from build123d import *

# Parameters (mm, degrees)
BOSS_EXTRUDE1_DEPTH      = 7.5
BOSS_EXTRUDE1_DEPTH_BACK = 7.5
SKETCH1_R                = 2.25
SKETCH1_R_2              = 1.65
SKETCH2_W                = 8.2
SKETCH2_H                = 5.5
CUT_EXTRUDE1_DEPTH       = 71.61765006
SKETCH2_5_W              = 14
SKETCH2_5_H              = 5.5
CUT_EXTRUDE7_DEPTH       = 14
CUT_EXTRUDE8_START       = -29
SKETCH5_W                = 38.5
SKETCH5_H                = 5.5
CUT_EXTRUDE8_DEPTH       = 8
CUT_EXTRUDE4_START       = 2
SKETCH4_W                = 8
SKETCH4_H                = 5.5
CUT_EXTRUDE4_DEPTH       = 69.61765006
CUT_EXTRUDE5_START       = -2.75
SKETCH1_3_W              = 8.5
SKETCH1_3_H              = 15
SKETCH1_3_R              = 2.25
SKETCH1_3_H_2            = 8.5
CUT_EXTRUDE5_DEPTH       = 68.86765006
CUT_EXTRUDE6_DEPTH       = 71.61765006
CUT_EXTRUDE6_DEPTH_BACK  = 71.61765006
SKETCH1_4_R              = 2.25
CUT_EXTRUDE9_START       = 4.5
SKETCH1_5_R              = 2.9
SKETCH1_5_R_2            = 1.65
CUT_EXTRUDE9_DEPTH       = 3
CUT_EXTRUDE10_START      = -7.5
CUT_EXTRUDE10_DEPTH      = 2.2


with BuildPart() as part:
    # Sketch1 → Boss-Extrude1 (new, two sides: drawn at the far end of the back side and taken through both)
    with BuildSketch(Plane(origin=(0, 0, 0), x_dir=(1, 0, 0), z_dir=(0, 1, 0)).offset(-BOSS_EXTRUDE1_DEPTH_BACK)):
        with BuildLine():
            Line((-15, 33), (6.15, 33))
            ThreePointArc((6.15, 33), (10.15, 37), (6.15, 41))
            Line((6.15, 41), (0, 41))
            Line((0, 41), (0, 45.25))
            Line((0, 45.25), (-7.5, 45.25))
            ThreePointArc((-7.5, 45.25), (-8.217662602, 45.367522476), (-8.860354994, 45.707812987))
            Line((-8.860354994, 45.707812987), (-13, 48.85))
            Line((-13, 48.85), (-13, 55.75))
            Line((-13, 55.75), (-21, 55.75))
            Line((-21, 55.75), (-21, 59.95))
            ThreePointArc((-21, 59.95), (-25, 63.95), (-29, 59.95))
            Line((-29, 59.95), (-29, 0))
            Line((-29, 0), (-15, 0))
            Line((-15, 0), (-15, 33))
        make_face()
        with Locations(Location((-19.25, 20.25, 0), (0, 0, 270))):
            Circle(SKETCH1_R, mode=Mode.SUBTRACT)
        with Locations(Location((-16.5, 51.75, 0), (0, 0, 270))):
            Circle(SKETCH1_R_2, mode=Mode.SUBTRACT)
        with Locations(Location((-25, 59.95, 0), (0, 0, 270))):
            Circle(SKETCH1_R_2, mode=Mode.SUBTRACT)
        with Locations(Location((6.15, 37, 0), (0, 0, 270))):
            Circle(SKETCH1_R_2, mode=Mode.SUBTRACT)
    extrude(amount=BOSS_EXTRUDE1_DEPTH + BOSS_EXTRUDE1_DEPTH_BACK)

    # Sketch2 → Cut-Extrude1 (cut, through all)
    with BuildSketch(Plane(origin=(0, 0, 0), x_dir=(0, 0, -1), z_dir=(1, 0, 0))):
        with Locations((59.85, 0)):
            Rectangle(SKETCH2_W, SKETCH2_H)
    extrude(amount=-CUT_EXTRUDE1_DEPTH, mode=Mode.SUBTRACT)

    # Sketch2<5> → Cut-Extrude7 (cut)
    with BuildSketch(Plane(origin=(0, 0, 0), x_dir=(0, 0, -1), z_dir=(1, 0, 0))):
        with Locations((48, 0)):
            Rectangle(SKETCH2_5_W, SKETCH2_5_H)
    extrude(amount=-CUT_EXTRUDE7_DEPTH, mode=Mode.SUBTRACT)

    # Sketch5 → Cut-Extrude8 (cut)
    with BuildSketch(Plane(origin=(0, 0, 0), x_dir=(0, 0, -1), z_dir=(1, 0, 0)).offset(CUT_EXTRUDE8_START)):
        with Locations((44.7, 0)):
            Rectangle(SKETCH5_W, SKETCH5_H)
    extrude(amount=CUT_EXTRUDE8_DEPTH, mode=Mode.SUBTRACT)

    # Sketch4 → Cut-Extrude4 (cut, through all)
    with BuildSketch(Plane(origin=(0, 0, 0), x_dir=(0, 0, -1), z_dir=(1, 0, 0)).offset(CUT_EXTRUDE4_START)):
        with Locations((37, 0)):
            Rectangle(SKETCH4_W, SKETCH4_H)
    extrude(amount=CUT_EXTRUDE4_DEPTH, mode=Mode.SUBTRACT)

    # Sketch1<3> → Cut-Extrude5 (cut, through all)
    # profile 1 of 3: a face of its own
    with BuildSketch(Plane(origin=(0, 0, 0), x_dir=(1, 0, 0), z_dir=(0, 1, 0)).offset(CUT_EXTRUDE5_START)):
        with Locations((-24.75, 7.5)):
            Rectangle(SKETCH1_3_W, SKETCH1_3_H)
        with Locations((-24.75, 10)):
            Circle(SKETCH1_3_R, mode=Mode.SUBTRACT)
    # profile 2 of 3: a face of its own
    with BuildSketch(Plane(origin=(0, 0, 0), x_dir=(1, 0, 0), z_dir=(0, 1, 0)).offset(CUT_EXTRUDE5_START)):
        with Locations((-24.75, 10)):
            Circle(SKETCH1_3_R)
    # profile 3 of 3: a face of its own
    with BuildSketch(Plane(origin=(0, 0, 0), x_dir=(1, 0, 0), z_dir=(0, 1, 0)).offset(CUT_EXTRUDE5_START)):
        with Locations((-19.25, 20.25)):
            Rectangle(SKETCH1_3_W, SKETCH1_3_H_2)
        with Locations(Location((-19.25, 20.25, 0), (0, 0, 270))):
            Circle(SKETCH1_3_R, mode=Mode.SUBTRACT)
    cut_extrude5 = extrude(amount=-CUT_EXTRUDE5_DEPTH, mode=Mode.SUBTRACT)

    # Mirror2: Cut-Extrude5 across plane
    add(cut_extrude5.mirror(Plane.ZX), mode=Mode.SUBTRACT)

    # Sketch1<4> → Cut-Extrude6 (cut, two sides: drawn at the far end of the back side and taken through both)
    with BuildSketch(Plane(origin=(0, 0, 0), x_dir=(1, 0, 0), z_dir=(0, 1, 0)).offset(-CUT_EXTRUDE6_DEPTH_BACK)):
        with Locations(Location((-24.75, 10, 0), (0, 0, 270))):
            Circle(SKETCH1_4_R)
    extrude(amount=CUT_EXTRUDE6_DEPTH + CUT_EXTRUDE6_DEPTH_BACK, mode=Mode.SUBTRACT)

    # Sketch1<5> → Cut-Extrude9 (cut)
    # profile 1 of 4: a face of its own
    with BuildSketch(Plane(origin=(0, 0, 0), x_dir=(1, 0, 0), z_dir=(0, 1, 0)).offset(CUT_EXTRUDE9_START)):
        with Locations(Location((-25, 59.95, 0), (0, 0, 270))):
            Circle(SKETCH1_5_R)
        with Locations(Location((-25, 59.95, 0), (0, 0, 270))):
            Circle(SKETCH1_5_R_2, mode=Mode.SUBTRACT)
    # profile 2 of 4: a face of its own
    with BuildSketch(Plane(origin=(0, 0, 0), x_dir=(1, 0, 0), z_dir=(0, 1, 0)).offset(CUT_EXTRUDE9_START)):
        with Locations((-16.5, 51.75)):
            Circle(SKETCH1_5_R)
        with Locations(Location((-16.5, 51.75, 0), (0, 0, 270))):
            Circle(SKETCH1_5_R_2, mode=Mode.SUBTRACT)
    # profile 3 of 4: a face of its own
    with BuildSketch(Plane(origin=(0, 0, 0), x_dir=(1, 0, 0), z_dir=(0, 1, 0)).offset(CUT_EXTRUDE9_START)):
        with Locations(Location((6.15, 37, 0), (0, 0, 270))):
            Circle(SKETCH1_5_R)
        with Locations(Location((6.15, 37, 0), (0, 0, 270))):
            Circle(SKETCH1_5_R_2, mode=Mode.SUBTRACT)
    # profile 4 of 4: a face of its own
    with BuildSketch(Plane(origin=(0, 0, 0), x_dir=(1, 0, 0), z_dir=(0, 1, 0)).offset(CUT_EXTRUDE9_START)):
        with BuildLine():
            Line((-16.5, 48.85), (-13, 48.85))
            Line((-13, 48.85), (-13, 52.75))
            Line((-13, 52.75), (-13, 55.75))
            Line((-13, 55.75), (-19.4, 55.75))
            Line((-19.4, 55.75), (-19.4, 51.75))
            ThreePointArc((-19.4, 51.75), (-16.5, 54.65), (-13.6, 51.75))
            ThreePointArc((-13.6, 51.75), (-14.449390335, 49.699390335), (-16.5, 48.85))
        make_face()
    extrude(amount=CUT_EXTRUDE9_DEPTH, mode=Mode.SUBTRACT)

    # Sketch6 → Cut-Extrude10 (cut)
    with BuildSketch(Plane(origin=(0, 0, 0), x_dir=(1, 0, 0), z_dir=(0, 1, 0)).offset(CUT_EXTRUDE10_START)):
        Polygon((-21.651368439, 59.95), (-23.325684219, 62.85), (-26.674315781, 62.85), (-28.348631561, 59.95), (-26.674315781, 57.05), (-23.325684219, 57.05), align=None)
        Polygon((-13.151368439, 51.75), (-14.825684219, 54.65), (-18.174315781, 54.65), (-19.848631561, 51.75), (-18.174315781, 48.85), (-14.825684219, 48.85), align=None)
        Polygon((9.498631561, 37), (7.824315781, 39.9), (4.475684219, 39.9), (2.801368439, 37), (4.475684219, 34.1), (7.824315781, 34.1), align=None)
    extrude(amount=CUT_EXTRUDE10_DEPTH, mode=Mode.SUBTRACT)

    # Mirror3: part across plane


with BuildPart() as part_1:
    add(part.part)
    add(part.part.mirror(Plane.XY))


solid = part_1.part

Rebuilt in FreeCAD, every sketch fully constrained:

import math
import FreeCAD as App
import Part
import Sketcher
from FreeCAD import Vector
Q = App.Units.Quantity

doc = App.newDocument("Part")
body = doc.addObject("PartDesign::Body", "Body")

sketch1 = body.newObject("Sketcher::SketchObject", "Sketch")
sketch1.AttachmentSupport = (doc.getObject("XZ_Plane"), [""])
sketch1.MapMode = "FlatFace"
sketch1.addGeometry([
    Part.LineSegment(Vector(-15, -33, 0), Vector(6.2, -33, 0)),
    Part.ArcOfCircle(Part.Circle(Vector(6.2, -37, 0), Vector(0, 0, 1), 4), math.radians(-90), math.radians(90)),
    Part.LineSegment(Vector(6.2, -41, 0), Vector(0, -41, 0)),
    Part.LineSegment(Vector(0, -41, 0), Vector(0, -45.2, 0)),
    Part.LineSegment(Vector(0, -45.2, 0), Vector(-7.5, -45.2, 0)),
    Part.ArcOfCircle(Part.Circle(Vector(-7.5, -47.5, 0), Vector(0, 0, 1), 2.2), math.radians(90), math.radians(127)),
    Part.LineSegment(Vector(-8.9, -45.7, 0), Vector(-13, -48.9, 0)),
    Part.LineSegment(Vector(-13, -48.9, 0), Vector(-13, -55.8, 0)),
    Part.LineSegment(Vector(-13, -55.8, 0), Vector(-21, -55.8, 0)),
    Part.LineSegment(Vector(-21, -55.8, 0), Vector(-21, -60, 0)),
    Part.ArcOfCircle(Part.Circle(Vector(-25, -60, 0), Vector(0, 0, 1), 4), math.radians(180), math.radians(360)),
    Part.LineSegment(Vector(-29, -60, 0), Vector(-29, 0, 0)),
    Part.LineSegment(Vector(-29, 0, 0), Vector(-15, 0, 0)),
    Part.LineSegment(Vector(-15, 0, 0), Vector(-15, -33, 0)),
    Part.Circle(Vector(-19.2, -20.2, 0), Vector(0, 0, 1), 2.2),
    Part.Circle(Vector(6.2, -37, 0), Vector(0, 0, 1), 1.6),
    Part.Circle(Vector(-25, -60, 0), Vector(0, 0, 1), 1.6),
    Part.Circle(Vector(-16.5, -51.8, 0), Vector(0, 0, 1), 1.6),
], False)
sketch1.addConstraint([
    Sketcher.Constraint("Tangent", 0, 2, 1, 2),
    Sketcher.Constraint("Tangent", 1, 1, 2, 1),
    Sketcher.Constraint("Coincident", 2, 2, 3, 1),
    Sketcher.Constraint("Coincident", 3, 2, 4, 1),
    Sketcher.Constraint("Tangent", 4, 2, 5, 1),
    Sketcher.Constraint("Tangent", 5, 2, 6, 1),
    Sketcher.Constraint("Coincident", 6, 2, 7, 1),
    Sketcher.Constraint("Coincident", 7, 2, 8, 1),
    Sketcher.Constraint("Coincident", 8, 2, 9, 1),
    Sketcher.Constraint("Tangent", 9, 2, 10, 2),
    Sketcher.Constraint("Tangent", 10, 1, 11, 1),
    Sketcher.Constraint("Coincident", 11, 2, 12, 1),
    Sketcher.Constraint("Coincident", 12, 2, 13, 1),
    Sketcher.Constraint("Coincident", 13, 2, 0, 1),
    Sketcher.Constraint("Horizontal", 0),
    Sketcher.Constraint("Horizontal", 2),
    Sketcher.Constraint("Vertical", 3),
    Sketcher.Constraint("Horizontal", 4),
    Sketcher.Constraint("Vertical", 7),
    Sketcher.Constraint("Horizontal", 8),
    Sketcher.Constraint("Vertical", 9),
    Sketcher.Constraint("Vertical", 11),
    Sketcher.Constraint("Horizontal", 12),
    Sketcher.Constraint("Vertical", 13),
    Sketcher.Constraint("Coincident", 15, 3, 1, 3),
    Sketcher.Constraint("Coincident", 16, 3, 10, 3),
    Sketcher.Constraint("Equal", 1, 10),
    Sketcher.Constraint("Equal", 5, 14),
    Sketcher.Constraint("Equal", 15, 16),
    Sketcher.Constraint("Equal", 16, 17),
    Sketcher.Constraint("PointOnObject", 2, 2, -2),
    Sketcher.Constraint("PointOnObject", 11, 2, -1),
    Sketcher.Constraint("Radius", 1, Q("4 mm")),
    Sketcher.Constraint("Diameter", 14, Q("4.5 mm")),
    Sketcher.Constraint("Diameter", 15, Q("3.3 mm")),
    Sketcher.Constraint("DistanceX", 8, 2, 8, 1, Q("8 mm")),
    Sketcher.Constraint("DistanceX", 12, 1, 12, 2, Q("14 mm")),
    Sketcher.Constraint("DistanceY", 13, 2, 13, 1, Q("33 mm")),
    Sketcher.Constraint("DistanceX", 4, 2, 4, 1, Q("7.5 mm")),
    Sketcher.Constraint("DistanceY", 7, 2, 7, 1, Q("6.9 mm")),
    Sketcher.Constraint("DistanceY", 9, 2, 9, 1, Q("4.2 mm")),
    Sketcher.Constraint("DistanceX", 10, 3, -1, 1, Q("25 mm")),
    Sketcher.Constraint("DistanceX", 17, 3, 5, 3, Q("9 mm")),
    Sketcher.Constraint("DistanceY", 7, 2, 17, 3, Q("4 mm")),
    Sketcher.Constraint("DistanceX", 0, 1, 0, 2, Q("21.15 mm")),
    Sketcher.Constraint("DistanceY", 3, 2, 3, 1, Q("4.25 mm")),
    Sketcher.Constraint("DistanceY", 11, 1, 11, 2, Q("59.95 mm")),
    Sketcher.Constraint("DistanceX", 14, 3, 1, 3, Q("25.4 mm")),
    Sketcher.Constraint("DistanceY", 10, 3, 14, 3, Q("39.7 mm")),
])
pad1 = body.newObject("PartDesign::Pad", "Pad")
pad1.Profile = sketch1
pad1.Type = "TwoLengths"
pad1.Length = 7.5
pad1.Length2 = 7.5
pad1.Reversed = True

sketch2 = body.newObject("Sketcher::SketchObject", "Sketch001")
sketch2.AttachmentSupport = (doc.getObject("YZ_Plane"), [""])
sketch2.MapMode = "FlatFace"
sketch2.addGeometry([
    Part.LineSegment(Vector(3, -56, 0), Vector(-3, -56, 0)),
    Part.LineSegment(Vector(-3, -56, 0), Vector(-3, -64, 0)),
    Part.LineSegment(Vector(-3, -64, 0), Vector(3, -64, 0)),
    Part.LineSegment(Vector(3, -64, 0), Vector(3, -56, 0)),
], False)
sketch2.addConstraint([
    Sketcher.Constraint("Coincident", 0, 2, 1, 1),
    Sketcher.Constraint("Coincident", 1, 2, 2, 1),
    Sketcher.Constraint("Coincident", 2, 2, 3, 1),
    Sketcher.Constraint("Coincident", 3, 2, 0, 1),
    Sketcher.Constraint("Horizontal", 0),
    Sketcher.Constraint("Vertical", 1),
    Sketcher.Constraint("Horizontal", 2),
    Sketcher.Constraint("Vertical", 3),
    Sketcher.Constraint("DistanceX", 0, 2, 0, 1, Q("5.5 mm")),
    Sketcher.Constraint("DistanceY", 1, 2, 1, 1, Q("8.2 mm")),
    Sketcher.Constraint("DistanceX", 0, 2, -1, 1, Q("2.75 mm")),
    Sketcher.Constraint("DistanceY", 0, 2, -1, 1, Q("55.75 mm")),
])
pocket1 = body.newObject("PartDesign::Pocket", "Pocket")
pocket1.Profile = sketch2
pocket1.Type = "ThroughAll"

sketch3 = body.newObject("Sketcher::SketchObject", "Sketch002")
sketch3.AttachmentSupport = (doc.getObject("YZ_Plane"), [""])
sketch3.MapMode = "FlatFace"
sketch3.addGeometry([
    Part.LineSegment(Vector(3, -41, 0), Vector(-3, -41, 0)),
    Part.LineSegment(Vector(-3, -41, 0), Vector(-3, -55, 0)),
    Part.LineSegment(Vector(-3, -55, 0), Vector(3, -55, 0)),
    Part.LineSegment(Vector(3, -55, 0), Vector(3, -41, 0)),
], False)
sketch3.addConstraint([
    Sketcher.Constraint("Coincident", 0, 2, 1, 1),
    Sketcher.Constraint("Coincident", 1, 2, 2, 1),
    Sketcher.Constraint("Coincident", 2, 2, 3, 1),
    Sketcher.Constraint("Coincident", 3, 2, 0, 1),
    Sketcher.Constraint("Horizontal", 0),
    Sketcher.Constraint("Vertical", 1),
    Sketcher.Constraint("Horizontal", 2),
    Sketcher.Constraint("Vertical", 3),
    Sketcher.Constraint("DistanceY", 1, 2, 1, 1, Q("14 mm")),
    Sketcher.Constraint("DistanceX", 0, 2, 0, 1, Q("5.5 mm")),
    Sketcher.Constraint("DistanceY", 0, 2, -1, 1, Q("41 mm")),
    Sketcher.Constraint("DistanceX", 0, 2, -1, 1, Q("2.75 mm")),
])
pocket2 = body.newObject("PartDesign::Pocket", "Pocket001")
pocket2.Profile = sketch3
pocket2.Length = 14

sketch4 = body.newObject("Sketcher::SketchObject", "Sketch003")
sketch4.AttachmentSupport = (doc.getObject("YZ_Plane"), [""])
sketch4.MapMode = "FlatFace"
sketch4.AttachmentOffset = App.Placement(Vector(0, 0, -29), App.Rotation())
sketch4.addGeometry([
    Part.LineSegment(Vector(3, -25, 0), Vector(-3, -25, 0)),
    Part.LineSegment(Vector(-3, -25, 0), Vector(-3, -64, 0)),
    Part.LineSegment(Vector(-3, -64, 0), Vector(3, -64, 0)),
    Part.LineSegment(Vector(3, -64, 0), Vector(3, -25, 0)),
], False)
sketch4.addConstraint([
    Sketcher.Constraint("Coincident", 0, 2, 1, 1),
    Sketcher.Constraint("Coincident", 1, 2, 2, 1),
    Sketcher.Constraint("Coincident", 2, 2, 3, 1),
    Sketcher.Constraint("Coincident", 3, 2, 0, 1),
    Sketcher.Constraint("Horizontal", 0),
    Sketcher.Constraint("Vertical", 1),
    Sketcher.Constraint("Horizontal", 2),
    Sketcher.Constraint("Vertical", 3),
    Sketcher.Constraint("DistanceX", 0, 2, 0, 1, Q("5.5 mm")),
    Sketcher.Constraint("DistanceY", 1, 2, 1, 1, Q("38.5 mm")),
    Sketcher.Constraint("DistanceX", 0, 2, -1, 1, Q("2.75 mm")),
    Sketcher.Constraint("DistanceY", 0, 2, -1, 1, Q("25.45 mm")),
])
pocket3 = body.newObject("PartDesign::Pocket", "Pocket002")
pocket3.Profile = sketch4
pocket3.Length = 8
pocket3.Reversed = True

sketch5 = body.newObject("Sketcher::SketchObject", "Sketch004")
sketch5.AttachmentSupport = (doc.getObject("YZ_Plane"), [""])
sketch5.MapMode = "FlatFace"
sketch5.AttachmentOffset = App.Placement(Vector(0, 0, 2), App.Rotation())
sketch5.addGeometry([
    Part.LineSegment(Vector(3, -33, 0), Vector(-3, -33, 0)),
    Part.LineSegment(Vector(-3, -33, 0), Vector(-3, -41, 0)),
    Part.LineSegment(Vector(-3, -41, 0), Vector(3, -41, 0)),
    Part.LineSegment(Vector(3, -41, 0), Vector(3, -33, 0)),
], False)
sketch5.addConstraint([
    Sketcher.Constraint("Coincident", 0, 2, 1, 1),
    Sketcher.Constraint("Coincident", 1, 2, 2, 1),
    Sketcher.Constraint("Coincident", 2, 2, 3, 1),
    Sketcher.Constraint("Coincident", 3, 2, 0, 1),
    Sketcher.Constraint("Horizontal", 0),
    Sketcher.Constraint("Vertical", 1),
    Sketcher.Constraint("Horizontal", 2),
    Sketcher.Constraint("Vertical", 3),
    Sketcher.Constraint("DistanceY", 1, 2, 1, 1, Q("8 mm")),
    Sketcher.Constraint("DistanceX", 0, 2, 0, 1, Q("5.5 mm")),
    Sketcher.Constraint("DistanceY", 0, 2, -1, 1, Q("33 mm")),
    Sketcher.Constraint("DistanceX", 0, 2, -1, 1, Q("2.75 mm")),
])
pocket4 = body.newObject("PartDesign::Pocket", "Pocket003")
pocket4.Profile = sketch5
pocket4.Type = "ThroughAll"
pocket4.Reversed = True

sketch6 = body.newObject("Sketcher::SketchObject", "Sketch005")
sketch6.AttachmentSupport = (doc.getObject("XZ_Plane"), [""])
sketch6.MapMode = "FlatFace"
sketch6.AttachmentOffset = App.Placement(Vector(0, 0, 2.75), App.Rotation())
sketch6.addGeometry([
    Part.LineSegment(Vector(-29, -15, 0), Vector(-29, 0, 0)),
    Part.LineSegment(Vector(-29, 0, 0), Vector(-20.5, 0, 0)),
    Part.LineSegment(Vector(-20.5, 0, 0), Vector(-20.5, -15, 0)),
    Part.LineSegment(Vector(-20.5, -15, 0), Vector(-29, -15, 0)),
    Part.LineSegment(Vector(-23.5, -24.5, 0), Vector(-23.5, -16, 0)),
    Part.LineSegment(Vector(-23.5, -16, 0), Vector(-15, -16, 0)),
    Part.LineSegment(Vector(-15, -16, 0), Vector(-15, -24.5, 0)),
    Part.LineSegment(Vector(-15, -24.5, 0), Vector(-23.5, -24.5, 0)),
    Part.Circle(Vector(-19.2, -20.2, 0), Vector(0, 0, 1), 2.2),
], False)
sketch6.addConstraint([
    Sketcher.Constraint("Coincident", 0, 2, 1, 1),
    Sketcher.Constraint("Coincident", 1, 2, 2, 1),
    Sketcher.Constraint("Coincident", 2, 2, 3, 1),
    Sketcher.Constraint("Coincident", 3, 2, 0, 1),
    Sketcher.Constraint("Coincident", 4, 2, 5, 1),
    Sketcher.Constraint("Coincident", 5, 2, 6, 1),
    Sketcher.Constraint("Coincident", 6, 2, 7, 1),
    Sketcher.Constraint("Coincident", 7, 2, 4, 1),
    Sketcher.Constraint("Vertical", 0),
    Sketcher.Constraint("Horizontal", 1),
    Sketcher.Constraint("Vertical", 2),
    Sketcher.Constraint("Horizontal", 3),
    Sketcher.Constraint("Vertical", 4),
    Sketcher.Constraint("Horizontal", 5),
    Sketcher.Constraint("Vertical", 6),
    Sketcher.Constraint("Horizontal", 7),
    Sketcher.Constraint("PointOnObject", 0, 2, -1),
    Sketcher.Constraint("Equal", 3, 5),
    Sketcher.Constraint("Equal", 7, 4),
    Sketcher.Constraint("Diameter", 8, Q("4.5 mm")),
    Sketcher.Constraint("DistanceY", 0, 1, 0, 2, Q("15 mm")),
    Sketcher.Constraint("DistanceX", 1, 1, 1, 2, Q("8.5 mm")),
    Sketcher.Constraint("DistanceX", 0, 2, -1, 1, Q("29 mm")),
    Sketcher.Constraint("DistanceY", 4, 2, -1, 1, Q("16 mm")),
    Sketcher.Constraint("DistanceX", 5, 2, -1, 1, Q("15 mm")),
    Sketcher.Constraint("DistanceX", 8, 3, -1, 1, Q("19.25 mm")),
    Sketcher.Constraint("DistanceY", 8, 3, -1, 1, Q("20.25 mm")),
])
pocket5 = body.newObject("PartDesign::Pocket", "Pocket004")
pocket5.Profile = sketch6
pocket5.Length = 68.86765
pocket5.Reversed = True
doc.recompute()

mirrored = body.newObject("PartDesign::Mirrored", "Mirrored")
mirrored.Originals = [pocket5]
mirrored.MirrorPlane = (doc.getObject("XZ_Plane"), [""])
body.Tip = mirrored

sketch7 = body.newObject("Sketcher::SketchObject", "Sketch006")
sketch7.AttachmentSupport = (doc.getObject("XZ_Plane"), [""])
sketch7.MapMode = "FlatFace"
sketch7.addGeometry(Part.Circle(Vector(-24.8, -10, 0), Vector(0, 0, 1), 2.2), False)
sketch7.addConstraint([
    Sketcher.Constraint("Diameter", 0, Q("4.5 mm")),
    Sketcher.Constraint("DistanceY", 0, 3, -1, 1, Q("10 mm")),
    Sketcher.Constraint("DistanceX", 0, 3, -1, 1, Q("24.75 mm")),
])
pocket6 = body.newObject("PartDesign::Pocket", "Pocket005")
pocket6.Profile = sketch7
pocket6.Type = "ThroughAll"
pocket6.Midplane = True

sketch8 = body.newObject("Sketcher::SketchObject", "Sketch007")
sketch8.AttachmentSupport = (doc.getObject("XZ_Plane"), [""])
sketch8.MapMode = "FlatFace"
sketch8.AttachmentOffset = App.Placement(Vector(0, 0, -4.5), App.Rotation())
sketch8.addGeometry([
    Part.Circle(Vector(-25, -60, 0), Vector(0, 0, 1), 2.9),
    Part.Circle(Vector(-25, -60, 0), Vector(0, 0, 1), 1.6),
    Part.ArcOfCircle(Part.Circle(Vector(-16.5, -51.8, 0), Vector(0, 0, 1), 2.9), math.radians(90), math.radians(180)),
    Part.LineSegment(Vector(-16.5, -48.9, 0), Vector(-13, -48.9, 0)),
    Part.LineSegment(Vector(-13, -48.9, 0), Vector(-13, -55.8, 0)),
    Part.LineSegment(Vector(-13, -55.8, 0), Vector(-19.4, -55.8, 0)),
    Part.LineSegment(Vector(-19.4, -55.8, 0), Vector(-19.4, -51.8, 0)),
    Part.Circle(Vector(-16.5, -51.8, 0), Vector(0, 0, 1), 1.6),
    Part.Circle(Vector(6.2, -37, 0), Vector(0, 0, 1), 2.9),
    Part.Circle(Vector(6.2, -37, 0), Vector(0, 0, 1), 1.6),
], False)
sketch8.addConstraint([
    Sketcher.Constraint("Tangent", 2, 1, 3, 1),
    Sketcher.Constraint("Coincident", 3, 2, 4, 1),
    Sketcher.Constraint("Coincident", 4, 2, 5, 1),
    Sketcher.Constraint("Coincident", 5, 2, 6, 1),
    Sketcher.Constraint("Tangent", 6, 2, 2, 2),
    Sketcher.Constraint("Horizontal", 3),
    Sketcher.Constraint("Vertical", 4),
    Sketcher.Constraint("Horizontal", 5),
    Sketcher.Constraint("Vertical", 6),
    Sketcher.Constraint("Coincident", 1, 3, 0, 3),
    Sketcher.Constraint("Coincident", 7, 3, 2, 3),
    Sketcher.Constraint("Coincident", 9, 3, 8, 3),
    Sketcher.Constraint("Equal", 0, 2),
    Sketcher.Constraint("Equal", 1, 7),
    Sketcher.Constraint("Equal", 2, 8),
    Sketcher.Constraint("Equal", 7, 9),
    Sketcher.Constraint("Diameter", 0, Q("5.8 mm")),
    Sketcher.Constraint("Diameter", 1, Q("3.3 mm")),
    Sketcher.Constraint("DistanceY", 6, 1, 6, 2, Q("4 mm")),
    Sketcher.Constraint("DistanceX", 3, 1, 3, 2, Q("3.5 mm")),
    Sketcher.Constraint("DistanceX", 0, 3, -1, 1, Q("25 mm")),
    Sketcher.Constraint("DistanceY", 8, 3, -1, 1, Q("37 mm")),
    Sketcher.Constraint("DistanceX", 3, 2, -1, 1, Q("13 mm")),
    Sketcher.Constraint("DistanceY", 0, 3, 2, 3, Q("8.2 mm")),
    Sketcher.Constraint("DistanceY", 0, 3, -1, 1, Q("59.95 mm")),
    Sketcher.Constraint("DistanceX", -1, 1, 8, 3, Q("6.15 mm")),
])
pocket7 = body.newObject("PartDesign::Pocket", "Pocket006")
pocket7.Profile = sketch8
pocket7.Length = 3

sketch9 = body.newObject("Sketcher::SketchObject", "Sketch008")
sketch9.AttachmentSupport = (doc.getObject("XZ_Plane"), [""])
sketch9.MapMode = "FlatFace"
sketch9.AttachmentOffset = App.Placement(Vector(0, 0, 7.5), App.Rotation())
sketch9.addGeometry([
    Part.LineSegment(Vector(-21.7, -60, 0), Vector(-23.3, -62.9, 0)),
    Part.LineSegment(Vector(-23.3, -62.9, 0), Vector(-26.7, -62.9, 0)),
    Part.LineSegment(Vector(-26.7, -62.9, 0), Vector(-28.3, -60, 0)),
    Part.LineSegment(Vector(-28.3, -60, 0), Vector(-26.7, -57, 0)),
    Part.LineSegment(Vector(-26.7, -57, 0), Vector(-23.3, -57, 0)),
    Part.LineSegment(Vector(-23.3, -57, 0), Vector(-21.7, -60, 0)),
    Part.LineSegment(Vector(-13.2, -51.8, 0), Vector(-14.8, -54.6, 0)),
    Part.LineSegment(Vector(-14.8, -54.6, 0), Vector(-18.2, -54.6, 0)),
    Part.LineSegment(Vector(-18.2, -54.6, 0), Vector(-19.8, -51.8, 0)),
    Part.LineSegment(Vector(-19.8, -51.8, 0), Vector(-18.2, -48.9, 0)),
    Part.LineSegment(Vector(-18.2, -48.9, 0), Vector(-14.8, -48.9, 0)),
    Part.LineSegment(Vector(-14.8, -48.9, 0), Vector(-13.2, -51.8, 0)),
    Part.LineSegment(Vector(9.5, -37, 0), Vector(7.8, -39.9, 0)),
    Part.LineSegment(Vector(7.8, -39.9, 0), Vector(4.5, -39.9, 0)),
    Part.LineSegment(Vector(4.5, -39.9, 0), Vector(2.8, -37, 0)),
    Part.LineSegment(Vector(2.8, -37, 0), Vector(4.5, -34.1, 0)),
    Part.LineSegment(Vector(4.5, -34.1, 0), Vector(7.8, -34.1, 0)),
    Part.LineSegment(Vector(7.8, -34.1, 0), Vector(9.5, -37, 0)),
], False)
sketch9.addConstraint([
    Sketcher.Constraint("Coincident", 0, 2, 1, 1),
    Sketcher.Constraint("Coincident", 1, 2, 2, 1),
    Sketcher.Constraint("Coincident", 2, 2, 3, 1),
    Sketcher.Constraint("Coincident", 3, 2, 4, 1),
    Sketcher.Constraint("Coincident", 4, 2, 5, 1),
    Sketcher.Constraint("Coincident", 5, 2, 0, 1),
    Sketcher.Constraint("Coincident", 6, 2, 7, 1),
    Sketcher.Constraint("Coincident", 7, 2, 8, 1),
    Sketcher.Constraint("Coincident", 8, 2, 9, 1),
    Sketcher.Constraint("Coincident", 9, 2, 10, 1),
    Sketcher.Constraint("Coincident", 10, 2, 11, 1),
    Sketcher.Constraint("Coincident", 11, 2, 6, 1),
    Sketcher.Constraint("Coincident", 12, 2, 13, 1),
    Sketcher.Constraint("Coincident", 13, 2, 14, 1),
    Sketcher.Constraint("Coincident", 14, 2, 15, 1),
    Sketcher.Constraint("Coincident", 15, 2, 16, 1),
    Sketcher.Constraint("Coincident", 16, 2, 17, 1),
    Sketcher.Constraint("Coincident", 17, 2, 12, 1),
    Sketcher.Constraint("Horizontal", 1),
    Sketcher.Constraint("Horizontal", 4),
    Sketcher.Constraint("Horizontal", 7),
    Sketcher.Constraint("Horizontal", 10),
    Sketcher.Constraint("Horizontal", 13),
    Sketcher.Constraint("Horizontal", 16),
    Sketcher.Constraint("Parallel", 0, 3),
    Sketcher.Constraint("Parallel", 2, 5),
    Sketcher.Constraint("Parallel", 3, 6),
    Sketcher.Constraint("Parallel", 5, 8),
    Sketcher.Constraint("Parallel", 6, 9),
    Sketcher.Constraint("Parallel", 8, 11),
    Sketcher.Constraint("Parallel", 9, 12),
    Sketcher.Constraint("Parallel", 11, 14),
    Sketcher.Constraint("Parallel", 12, 15),
    Sketcher.Constraint("Parallel", 14, 17),
    Sketcher.Constraint("Horizontal", 2, 2, 5, 2),
    Sketcher.Constraint("Horizontal", 8, 2, 11, 2),
    Sketcher.Constraint("Horizontal", 14, 2, 17, 2),
    Sketcher.Constraint("Vertical", 1, 2, 3, 2),
    Sketcher.Constraint("Vertical", 0, 2, 4, 2),
    Sketcher.Constraint("Vertical", 7, 2, 9, 2),
    Sketcher.Constraint("Vertical", 13, 2, 15, 2),
    Sketcher.Constraint("Equal", 4, 7),
    Sketcher.Constraint("Equal", 10, 13),
    Sketcher.Constraint("Equal", 5, 6),
    Sketcher.Constraint("Equal", 11, 12),
    Sketcher.Constraint("Angle", 0, Q("-120 deg")),
    Sketcher.Constraint("DistanceY", 14, 2, -1, 1, Q("37 mm")),
    Sketcher.Constraint("DistanceY", 12, 2, -1, 1, Q("39.9 mm")),
    Sketcher.Constraint("DistanceY", 5, 2, 6, 2, Q("5.3 mm")),
    Sketcher.Constraint("DistanceX", 4, 2, 6, 2, Q("8.5 mm")),
    Sketcher.Constraint("DistanceY", 0, 2, -1, 1, Q("62.85 mm")),
    Sketcher.Constraint("DistanceX", 10, 2, 12, 2, Q("22.65 mm")),
    Sketcher.Constraint("DistanceX", 1, 2, 1, 1, Q("3.348632 mm")),
    Sketcher.Constraint("DistanceX", 2, 2, -1, 1, Q("28.348632 mm")),
])
pocket8 = body.newObject("PartDesign::Pocket", "Pocket007")
pocket8.Profile = sketch9
pocket8.Length = 2.2
body2 = doc.addObject("PartDesign::Body", "Body001")
doc.recompute()

body2.BaseFeature = body
doc.recompute()

mirroring = doc.addObject("Part::Mirroring", "Mirroring")
mirroring.Source = body
mirroring.Base = Vector(0, 0, 0)
mirroring.Normal = Vector(0, 0, 1)
body3 = doc.addObject("PartDesign::Body", "Body002")
body3.BaseFeature = mirroring
boolean = body2.newObject("PartDesign::Boolean", "Boolean")
boolean.Type = "Fuse"
boolean.addObjects([body3])
doc.recompute()
mirroring.Visibility = False

doc.recompute()
